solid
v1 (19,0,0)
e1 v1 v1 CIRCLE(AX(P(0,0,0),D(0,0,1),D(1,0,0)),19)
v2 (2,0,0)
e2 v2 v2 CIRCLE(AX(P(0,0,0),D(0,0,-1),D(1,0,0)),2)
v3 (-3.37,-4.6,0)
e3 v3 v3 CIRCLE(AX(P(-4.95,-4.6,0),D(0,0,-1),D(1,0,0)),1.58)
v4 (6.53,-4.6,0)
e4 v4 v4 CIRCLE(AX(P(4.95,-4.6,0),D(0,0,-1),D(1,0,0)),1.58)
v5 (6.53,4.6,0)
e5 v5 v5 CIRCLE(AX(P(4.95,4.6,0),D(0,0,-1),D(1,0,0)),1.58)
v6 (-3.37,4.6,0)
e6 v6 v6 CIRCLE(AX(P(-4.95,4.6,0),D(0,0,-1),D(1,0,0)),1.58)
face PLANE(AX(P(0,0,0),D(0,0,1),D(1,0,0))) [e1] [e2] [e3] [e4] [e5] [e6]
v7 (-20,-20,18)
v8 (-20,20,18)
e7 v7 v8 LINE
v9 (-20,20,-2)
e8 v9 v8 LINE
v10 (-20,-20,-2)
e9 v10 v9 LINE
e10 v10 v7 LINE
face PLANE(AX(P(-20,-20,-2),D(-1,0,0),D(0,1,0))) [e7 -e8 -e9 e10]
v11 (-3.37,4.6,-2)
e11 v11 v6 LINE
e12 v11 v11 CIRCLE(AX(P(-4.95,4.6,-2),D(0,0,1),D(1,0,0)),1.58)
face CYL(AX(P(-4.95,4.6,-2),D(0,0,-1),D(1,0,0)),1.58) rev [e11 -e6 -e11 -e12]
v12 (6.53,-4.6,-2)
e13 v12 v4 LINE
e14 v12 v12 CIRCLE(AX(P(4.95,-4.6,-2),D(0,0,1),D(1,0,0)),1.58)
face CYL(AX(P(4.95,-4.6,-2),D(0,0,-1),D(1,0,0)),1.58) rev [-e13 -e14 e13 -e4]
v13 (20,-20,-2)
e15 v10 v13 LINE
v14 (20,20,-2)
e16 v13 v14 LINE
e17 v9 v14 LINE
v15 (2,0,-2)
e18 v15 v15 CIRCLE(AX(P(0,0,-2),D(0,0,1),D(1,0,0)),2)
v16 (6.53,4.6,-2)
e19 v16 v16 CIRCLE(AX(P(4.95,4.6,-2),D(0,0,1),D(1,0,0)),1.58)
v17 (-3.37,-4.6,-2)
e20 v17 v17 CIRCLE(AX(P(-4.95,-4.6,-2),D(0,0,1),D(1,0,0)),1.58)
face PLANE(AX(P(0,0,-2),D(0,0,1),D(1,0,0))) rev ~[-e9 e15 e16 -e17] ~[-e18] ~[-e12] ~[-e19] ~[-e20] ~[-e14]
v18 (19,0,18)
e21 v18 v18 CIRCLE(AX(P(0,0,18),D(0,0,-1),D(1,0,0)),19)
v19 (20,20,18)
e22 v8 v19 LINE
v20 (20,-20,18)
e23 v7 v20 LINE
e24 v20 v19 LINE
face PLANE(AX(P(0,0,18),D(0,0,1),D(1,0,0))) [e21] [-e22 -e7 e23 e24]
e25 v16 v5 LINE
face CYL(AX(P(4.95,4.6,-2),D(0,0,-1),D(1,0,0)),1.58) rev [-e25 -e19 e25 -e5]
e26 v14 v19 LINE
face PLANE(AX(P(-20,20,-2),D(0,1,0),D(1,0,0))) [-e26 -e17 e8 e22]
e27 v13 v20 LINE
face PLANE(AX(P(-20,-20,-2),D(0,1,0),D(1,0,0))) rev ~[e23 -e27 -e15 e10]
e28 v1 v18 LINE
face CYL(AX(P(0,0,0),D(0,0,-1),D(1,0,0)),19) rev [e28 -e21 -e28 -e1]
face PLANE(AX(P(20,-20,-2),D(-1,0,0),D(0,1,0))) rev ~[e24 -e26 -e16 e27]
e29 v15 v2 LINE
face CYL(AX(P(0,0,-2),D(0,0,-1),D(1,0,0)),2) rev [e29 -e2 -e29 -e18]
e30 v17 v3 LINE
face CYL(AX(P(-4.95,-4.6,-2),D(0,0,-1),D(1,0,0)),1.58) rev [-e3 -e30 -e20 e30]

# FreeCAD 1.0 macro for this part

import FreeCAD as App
import Part
import Sketcher
from FreeCAD import Vector

doc = App.newDocument("Part")
body = doc.addObject("PartDesign::Body", "Body")

sketch1 = body.newObject("Sketcher::SketchObject", "Sketch")
sketch1.AttachmentSupport = (doc.getObject("XY_Plane"), [""])
sketch1.MapMode = "FlatFace"
sketch1.AttachmentOffset = App.Placement(Vector(0, 0, -2), App.Rotation())
sketch1.addGeometry(Part.Circle(Vector(5, 4.6, 0), Vector(0, 0, 1), 1.6), False)
sketch1.addConstraint(Sketcher.Constraint("Diameter", 0, 3.16))
sketch1.addConstraint(Sketcher.Constraint("DistanceY", -1, 1, 0, 3, 4.6))
sketch1.addConstraint(Sketcher.Constraint("DistanceX", -1, 1, 0, 3, 4.95))
pad1 = body.newObject("PartDesign::Pad", "Pad")
pad1.Profile = sketch1
pad1.Length = 20
body2 = doc.addObject("PartDesign::Body", "Body001")

sketch2 = body2.newObject("Sketcher::SketchObject", "Sketch001")
sketch2.AttachmentSupport = (doc.getObject("XY_Plane001"), [""])
sketch2.MapMode = "FlatFace"
sketch2.AttachmentOffset = App.Placement(Vector(0, 0, -2), App.Rotation())
sketch2.addGeometry(Part.Circle(Vector(0, 0, 0), Vector(0, 0, 1), 2), False)
sketch2.addConstraint(Sketcher.Constraint("Coincident", 0, 3, -1, 1))
sketch2.addConstraint(Sketcher.Constraint("Diameter", 0, 4.0))
pad2 = body2.newObject("PartDesign::Pad", "Pad001")
pad2.Profile = sketch2
pad2.Length = 20
body3 = doc.addObject("PartDesign::Body", "Body002")

sketch3 = body3.newObject("Sketcher::SketchObject", "Sketch002")
sketch3.AttachmentSupport = (doc.getObject("XY_Plane002"), [""])
sketch3.MapMode = "FlatFace"
sketch3.AttachmentOffset = App.Placement(Vector(0, 0, -2), App.Rotation())
sketch3.addGeometry(Part.Circle(Vector(-5, 4.6, 0), Vector(0, 0, 1), 1.6), False)
sketch3.addConstraint(Sketcher.Constraint("Diameter", 0, 3.16))
sketch3.addConstraint(Sketcher.Constraint("DistanceY", -1, 1, 0, 3, 4.6))
sketch3.addConstraint(Sketcher.Constraint("DistanceX", 0, 3, -1, 1, 4.95))
pad3 = body3.newObject("PartDesign::Pad", "Pad002")
pad3.Profile = sketch3
pad3.Length = 20
body4 = doc.addObject("PartDesign::Body", "Body003")

sketch4 = body4.newObject("Sketcher::SketchObject", "Sketch003")
sketch4.AttachmentSupport = (doc.getObject("XY_Plane003"), [""])
sketch4.MapMode = "FlatFace"
sketch4.AttachmentOffset = App.Placement(Vector(0, 0, -2), App.Rotation())
sketch4.addGeometry(Part.Circle(Vector(5, -4.6, 0), Vector(0, 0, 1), 1.6), False)
sketch4.addConstraint(Sketcher.Constraint("Diameter", 0, 3.16))
sketch4.addConstraint(Sketcher.Constraint("DistanceY", 0, 3, -1, 1, 4.6))
sketch4.addConstraint(Sketcher.Constraint("DistanceX", -1, 1, 0, 3, 4.95))
pad4 = body4.newObject("PartDesign::Pad", "Pad003")
pad4.Profile = sketch4
pad4.Length = 20
body5 = doc.addObject("PartDesign::Body", "Body004")

sketch5 = body5.newObject("Sketcher::SketchObject", "Sketch004")
sketch5.AttachmentSupport = (doc.getObject("XY_Plane004"), [""])
sketch5.MapMode = "FlatFace"
sketch5.AttachmentOffset = App.Placement(Vector(0, 0, -2), App.Rotation())
sketch5.addGeometry(Part.Circle(Vector(-5, -4.6, 0), Vector(0, 0, 1), 1.6), False)
sketch5.addConstraint(Sketcher.Constraint("Diameter", 0, 3.16))
sketch5.addConstraint(Sketcher.Constraint("DistanceY", 0, 3, -1, 1, 4.6))
sketch5.addConstraint(Sketcher.Constraint("DistanceX", 0, 3, -1, 1, 4.95))
pad5 = body5.newObject("PartDesign::Pad", "Pad004")
pad5.Profile = sketch5
pad5.Length = 20
body6 = doc.addObject("PartDesign::Body", "Body005")

sketch6 = body6.newObject("Sketcher::SketchObject", "Sketch005")
sketch6.AttachmentSupport = (doc.getObject("XY_Plane005"), [""])
sketch6.MapMode = "FlatFace"
sketch6.addGeometry(Part.Circle(Vector(0, 0, 0), Vector(0, 0, 1), 19), False)
sketch6.addConstraint(Sketcher.Constraint("Coincident", 0, 3, -1, 1))
sketch6.addConstraint(Sketcher.Constraint("Diameter", 0, 38.0))
pad6 = body6.newObject("PartDesign::Pad", "Pad005")
pad6.Profile = sketch6
pad6.Length = 19
body7 = doc.addObject("PartDesign::Body", "Body006")

sketch7 = body7.newObject("Sketcher::SketchObject", "Sketch006")
sketch7.AttachmentSupport = (doc.getObject("XY_Plane006"), [""])
sketch7.MapMode = "FlatFace"
sketch7.AttachmentOffset = App.Placement(Vector(0, 0, -2), App.Rotation())
sketch7.addGeometry(Part.LineSegment(Vector(-20, 20, 0), Vector(-20, -20, 0)), False)
sketch7.addGeometry(Part.LineSegment(Vector(-20, -20, 0), Vector(20, -20, 0)), False)
sketch7.addGeometry(Part.LineSegment(Vector(20, -20, 0), Vector(20, 20, 0)), False)
sketch7.addGeometry(Part.LineSegment(Vector(20, 20, 0), Vector(-20, 20, 0)), False)
sketch7.addConstraint(Sketcher.Constraint("Coincident", 0, 2, 1, 1))
sketch7.addConstraint(Sketcher.Constraint("Coincident", 1, 2, 2, 1))
sketch7.addConstraint(Sketcher.Constraint("Coincident", 2, 2, 3, 1))
sketch7.addConstraint(Sketcher.Constraint("Coincident", 3, 2, 0, 1))
sketch7.addConstraint(Sketcher.Constraint("Vertical", 0))
sketch7.addConstraint(Sketcher.Constraint("Horizontal", 1))
sketch7.addConstraint(Sketcher.Constraint("Vertical", 2))
sketch7.addConstraint(Sketcher.Constraint("Horizontal", 3))
sketch7.addConstraint(Sketcher.Constraint("Symmetric", 0, 2, 2, 2, -1, 1))
sketch7.addConstraint(Sketcher.Constraint("Equal", 3, 0))
sketch7.addConstraint(Sketcher.Constraint("DistanceX", 1, 1, 1, 2, 40.0))
pad7 = body7.newObject("PartDesign::Pad", "Pad006")
pad7.Profile = sketch7
pad7.Length = 20
doc.recompute()

boolean = body7.newObject("PartDesign::Boolean", "Boolean")
boolean.Type = "Cut"
boolean.addObjects([body6])
doc.recompute()

boolean2 = body7.newObject("PartDesign::Boolean", "Boolean001")
boolean2.Type = "Cut"
boolean2.addObjects([body5])
doc.recompute()

boolean3 = body7.newObject("PartDesign::Boolean", "Boolean002")
boolean3.Type = "Cut"
boolean3.addObjects([body4])
doc.recompute()

boolean4 = body7.newObject("PartDesign::Boolean", "Boolean003")
boolean4.Type = "Cut"
boolean4.addObjects([body3])
doc.recompute()

boolean5 = body7.newObject("PartDesign::Boolean", "Boolean004")
boolean5.Type = "Cut"
boolean5.addObjects([body2])
doc.recompute()

boolean6 = body7.newObject("PartDesign::Boolean", "Boolean005")
boolean6.Type = "Cut"
boolean6.addObjects([body])

doc.recompute()
